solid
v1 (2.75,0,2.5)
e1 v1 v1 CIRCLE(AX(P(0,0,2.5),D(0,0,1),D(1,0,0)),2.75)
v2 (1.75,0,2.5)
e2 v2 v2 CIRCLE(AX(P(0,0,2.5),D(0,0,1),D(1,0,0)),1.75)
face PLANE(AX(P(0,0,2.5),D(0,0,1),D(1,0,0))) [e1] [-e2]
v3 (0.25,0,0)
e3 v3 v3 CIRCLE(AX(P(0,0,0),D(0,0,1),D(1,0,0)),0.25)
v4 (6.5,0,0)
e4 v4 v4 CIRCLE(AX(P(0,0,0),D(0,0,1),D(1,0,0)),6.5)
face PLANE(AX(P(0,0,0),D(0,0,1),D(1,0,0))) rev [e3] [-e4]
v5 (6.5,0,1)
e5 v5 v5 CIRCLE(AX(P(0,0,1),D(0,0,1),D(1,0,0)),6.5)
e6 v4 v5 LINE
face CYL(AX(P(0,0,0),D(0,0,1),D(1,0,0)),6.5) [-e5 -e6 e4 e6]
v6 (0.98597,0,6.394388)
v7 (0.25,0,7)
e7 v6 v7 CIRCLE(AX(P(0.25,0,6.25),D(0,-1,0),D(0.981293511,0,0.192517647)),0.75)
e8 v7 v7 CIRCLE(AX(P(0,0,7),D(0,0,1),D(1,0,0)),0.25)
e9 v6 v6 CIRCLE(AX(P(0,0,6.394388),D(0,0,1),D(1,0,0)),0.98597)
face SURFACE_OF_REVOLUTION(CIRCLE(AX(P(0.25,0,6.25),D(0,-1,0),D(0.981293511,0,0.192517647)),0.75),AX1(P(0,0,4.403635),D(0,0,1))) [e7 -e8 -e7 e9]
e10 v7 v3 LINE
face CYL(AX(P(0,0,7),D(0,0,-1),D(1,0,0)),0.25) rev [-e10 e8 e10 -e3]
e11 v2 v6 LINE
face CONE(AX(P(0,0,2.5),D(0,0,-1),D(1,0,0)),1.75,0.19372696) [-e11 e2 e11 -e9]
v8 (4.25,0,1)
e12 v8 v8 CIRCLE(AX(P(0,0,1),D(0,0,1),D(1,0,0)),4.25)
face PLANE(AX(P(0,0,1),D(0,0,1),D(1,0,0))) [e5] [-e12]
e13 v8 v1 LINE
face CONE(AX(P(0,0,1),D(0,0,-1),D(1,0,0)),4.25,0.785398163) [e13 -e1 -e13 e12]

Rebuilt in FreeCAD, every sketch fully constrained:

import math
import FreeCAD as App
import Part
import Sketcher
Q = App.Units.Quantity

doc = App.newDocument("Part")
body = doc.addObject("PartDesign::Body", "Body")

sketch1 = doc.addObject("Sketcher::SketchObject", "Sketch")
body.addObject(sketch1)
sketch1.AttachmentSupport = (doc.XZ_Plane, [""])
sketch1.MapMode = "FlatFace"
sketch1.addGeometry([
    Part.LineSegment(App.Vector(0.2, 7, 0), App.Vector(0.2, 0, 0)),
    Part.LineSegment(App.Vector(0.2, 0, 0), App.Vector(6.5, 0, 0)),
    Part.LineSegment(App.Vector(6.5, 0, 0), App.Vector(6.5, 1, 0)),
    Part.LineSegment(App.Vector(6.5, 1, 0), App.Vector(4.2, 1, 0)),
    Part.LineSegment(App.Vector(4.2, 1, 0), App.Vector(2.8, 2.5, 0)),
    Part.LineSegment(App.Vector(2.8, 2.5, 0), App.Vector(1.8, 2.5, 0)),
    Part.LineSegment(App.Vector(1.8, 2.5, 0), App.Vector(1, 6.4, 0)),
    Part.ArcOfCircle(Part.Circle(App.Vector(0.2, 6.2, 0), App.Vector(0, 0, 1), 0.8), math.radians(11), math.radians(90)),
], False)
sketch1.addConstraint([
    Sketcher.Constraint("Coincident", 0, 2, 1, 1),
    Sketcher.Constraint("Coincident", 1, 2, 2, 1),
    Sketcher.Constraint("Coincident", 2, 2, 3, 1),
    Sketcher.Constraint("Coincident", 3, 2, 4, 1),
    Sketcher.Constraint("Coincident", 4, 2, 5, 1),
    Sketcher.Constraint("Coincident", 5, 2, 6, 1),
    Sketcher.Constraint("Tangent", 6, 2, 7, 1),
    Sketcher.Constraint("Coincident", 7, 2, 0, 1),
    Sketcher.Constraint("Vertical", 0),
    Sketcher.Constraint("Horizontal", 1),
    Sketcher.Constraint("Vertical", 2),
    Sketcher.Constraint("Horizontal", 3),
    Sketcher.Constraint("Horizontal", 5),
    Sketcher.Constraint("PointOnObject", 0, 2, -1),
    Sketcher.Constraint("Vertical", 7, 3, 0, 2),
    Sketcher.Constraint("Equal", 5, 2),
    Sketcher.Constraint("DistanceX", 5, 2, 5, 1, 1.0),
    Sketcher.Constraint("DistanceY", 0, 2, 0, 1, 7.0),
    Sketcher.Constraint("Angle", 4, Q("135 deg")),
    Sketcher.Constraint("Radius", 7, 0.75),
    Sketcher.Constraint("DistanceX", 0, 2, 3, 2, 4.0),
    Sketcher.Constraint("DistanceX", 1, 1, 1, 2, 6.25),
    Sketcher.Constraint("DistanceX", -1, 1, 1, 2, 6.5),
    Sketcher.Constraint("DistanceY", -1, 1, 4, 2, 2.5),
])
revolution = doc.addObject("PartDesign::Revolution", "Revolution")
body.addObject(revolution)
revolution.Profile = sketch1
revolution.ReferenceAxis = (sketch1, ["V_Axis"])
revolution.Angle = 360

doc.recompute()
